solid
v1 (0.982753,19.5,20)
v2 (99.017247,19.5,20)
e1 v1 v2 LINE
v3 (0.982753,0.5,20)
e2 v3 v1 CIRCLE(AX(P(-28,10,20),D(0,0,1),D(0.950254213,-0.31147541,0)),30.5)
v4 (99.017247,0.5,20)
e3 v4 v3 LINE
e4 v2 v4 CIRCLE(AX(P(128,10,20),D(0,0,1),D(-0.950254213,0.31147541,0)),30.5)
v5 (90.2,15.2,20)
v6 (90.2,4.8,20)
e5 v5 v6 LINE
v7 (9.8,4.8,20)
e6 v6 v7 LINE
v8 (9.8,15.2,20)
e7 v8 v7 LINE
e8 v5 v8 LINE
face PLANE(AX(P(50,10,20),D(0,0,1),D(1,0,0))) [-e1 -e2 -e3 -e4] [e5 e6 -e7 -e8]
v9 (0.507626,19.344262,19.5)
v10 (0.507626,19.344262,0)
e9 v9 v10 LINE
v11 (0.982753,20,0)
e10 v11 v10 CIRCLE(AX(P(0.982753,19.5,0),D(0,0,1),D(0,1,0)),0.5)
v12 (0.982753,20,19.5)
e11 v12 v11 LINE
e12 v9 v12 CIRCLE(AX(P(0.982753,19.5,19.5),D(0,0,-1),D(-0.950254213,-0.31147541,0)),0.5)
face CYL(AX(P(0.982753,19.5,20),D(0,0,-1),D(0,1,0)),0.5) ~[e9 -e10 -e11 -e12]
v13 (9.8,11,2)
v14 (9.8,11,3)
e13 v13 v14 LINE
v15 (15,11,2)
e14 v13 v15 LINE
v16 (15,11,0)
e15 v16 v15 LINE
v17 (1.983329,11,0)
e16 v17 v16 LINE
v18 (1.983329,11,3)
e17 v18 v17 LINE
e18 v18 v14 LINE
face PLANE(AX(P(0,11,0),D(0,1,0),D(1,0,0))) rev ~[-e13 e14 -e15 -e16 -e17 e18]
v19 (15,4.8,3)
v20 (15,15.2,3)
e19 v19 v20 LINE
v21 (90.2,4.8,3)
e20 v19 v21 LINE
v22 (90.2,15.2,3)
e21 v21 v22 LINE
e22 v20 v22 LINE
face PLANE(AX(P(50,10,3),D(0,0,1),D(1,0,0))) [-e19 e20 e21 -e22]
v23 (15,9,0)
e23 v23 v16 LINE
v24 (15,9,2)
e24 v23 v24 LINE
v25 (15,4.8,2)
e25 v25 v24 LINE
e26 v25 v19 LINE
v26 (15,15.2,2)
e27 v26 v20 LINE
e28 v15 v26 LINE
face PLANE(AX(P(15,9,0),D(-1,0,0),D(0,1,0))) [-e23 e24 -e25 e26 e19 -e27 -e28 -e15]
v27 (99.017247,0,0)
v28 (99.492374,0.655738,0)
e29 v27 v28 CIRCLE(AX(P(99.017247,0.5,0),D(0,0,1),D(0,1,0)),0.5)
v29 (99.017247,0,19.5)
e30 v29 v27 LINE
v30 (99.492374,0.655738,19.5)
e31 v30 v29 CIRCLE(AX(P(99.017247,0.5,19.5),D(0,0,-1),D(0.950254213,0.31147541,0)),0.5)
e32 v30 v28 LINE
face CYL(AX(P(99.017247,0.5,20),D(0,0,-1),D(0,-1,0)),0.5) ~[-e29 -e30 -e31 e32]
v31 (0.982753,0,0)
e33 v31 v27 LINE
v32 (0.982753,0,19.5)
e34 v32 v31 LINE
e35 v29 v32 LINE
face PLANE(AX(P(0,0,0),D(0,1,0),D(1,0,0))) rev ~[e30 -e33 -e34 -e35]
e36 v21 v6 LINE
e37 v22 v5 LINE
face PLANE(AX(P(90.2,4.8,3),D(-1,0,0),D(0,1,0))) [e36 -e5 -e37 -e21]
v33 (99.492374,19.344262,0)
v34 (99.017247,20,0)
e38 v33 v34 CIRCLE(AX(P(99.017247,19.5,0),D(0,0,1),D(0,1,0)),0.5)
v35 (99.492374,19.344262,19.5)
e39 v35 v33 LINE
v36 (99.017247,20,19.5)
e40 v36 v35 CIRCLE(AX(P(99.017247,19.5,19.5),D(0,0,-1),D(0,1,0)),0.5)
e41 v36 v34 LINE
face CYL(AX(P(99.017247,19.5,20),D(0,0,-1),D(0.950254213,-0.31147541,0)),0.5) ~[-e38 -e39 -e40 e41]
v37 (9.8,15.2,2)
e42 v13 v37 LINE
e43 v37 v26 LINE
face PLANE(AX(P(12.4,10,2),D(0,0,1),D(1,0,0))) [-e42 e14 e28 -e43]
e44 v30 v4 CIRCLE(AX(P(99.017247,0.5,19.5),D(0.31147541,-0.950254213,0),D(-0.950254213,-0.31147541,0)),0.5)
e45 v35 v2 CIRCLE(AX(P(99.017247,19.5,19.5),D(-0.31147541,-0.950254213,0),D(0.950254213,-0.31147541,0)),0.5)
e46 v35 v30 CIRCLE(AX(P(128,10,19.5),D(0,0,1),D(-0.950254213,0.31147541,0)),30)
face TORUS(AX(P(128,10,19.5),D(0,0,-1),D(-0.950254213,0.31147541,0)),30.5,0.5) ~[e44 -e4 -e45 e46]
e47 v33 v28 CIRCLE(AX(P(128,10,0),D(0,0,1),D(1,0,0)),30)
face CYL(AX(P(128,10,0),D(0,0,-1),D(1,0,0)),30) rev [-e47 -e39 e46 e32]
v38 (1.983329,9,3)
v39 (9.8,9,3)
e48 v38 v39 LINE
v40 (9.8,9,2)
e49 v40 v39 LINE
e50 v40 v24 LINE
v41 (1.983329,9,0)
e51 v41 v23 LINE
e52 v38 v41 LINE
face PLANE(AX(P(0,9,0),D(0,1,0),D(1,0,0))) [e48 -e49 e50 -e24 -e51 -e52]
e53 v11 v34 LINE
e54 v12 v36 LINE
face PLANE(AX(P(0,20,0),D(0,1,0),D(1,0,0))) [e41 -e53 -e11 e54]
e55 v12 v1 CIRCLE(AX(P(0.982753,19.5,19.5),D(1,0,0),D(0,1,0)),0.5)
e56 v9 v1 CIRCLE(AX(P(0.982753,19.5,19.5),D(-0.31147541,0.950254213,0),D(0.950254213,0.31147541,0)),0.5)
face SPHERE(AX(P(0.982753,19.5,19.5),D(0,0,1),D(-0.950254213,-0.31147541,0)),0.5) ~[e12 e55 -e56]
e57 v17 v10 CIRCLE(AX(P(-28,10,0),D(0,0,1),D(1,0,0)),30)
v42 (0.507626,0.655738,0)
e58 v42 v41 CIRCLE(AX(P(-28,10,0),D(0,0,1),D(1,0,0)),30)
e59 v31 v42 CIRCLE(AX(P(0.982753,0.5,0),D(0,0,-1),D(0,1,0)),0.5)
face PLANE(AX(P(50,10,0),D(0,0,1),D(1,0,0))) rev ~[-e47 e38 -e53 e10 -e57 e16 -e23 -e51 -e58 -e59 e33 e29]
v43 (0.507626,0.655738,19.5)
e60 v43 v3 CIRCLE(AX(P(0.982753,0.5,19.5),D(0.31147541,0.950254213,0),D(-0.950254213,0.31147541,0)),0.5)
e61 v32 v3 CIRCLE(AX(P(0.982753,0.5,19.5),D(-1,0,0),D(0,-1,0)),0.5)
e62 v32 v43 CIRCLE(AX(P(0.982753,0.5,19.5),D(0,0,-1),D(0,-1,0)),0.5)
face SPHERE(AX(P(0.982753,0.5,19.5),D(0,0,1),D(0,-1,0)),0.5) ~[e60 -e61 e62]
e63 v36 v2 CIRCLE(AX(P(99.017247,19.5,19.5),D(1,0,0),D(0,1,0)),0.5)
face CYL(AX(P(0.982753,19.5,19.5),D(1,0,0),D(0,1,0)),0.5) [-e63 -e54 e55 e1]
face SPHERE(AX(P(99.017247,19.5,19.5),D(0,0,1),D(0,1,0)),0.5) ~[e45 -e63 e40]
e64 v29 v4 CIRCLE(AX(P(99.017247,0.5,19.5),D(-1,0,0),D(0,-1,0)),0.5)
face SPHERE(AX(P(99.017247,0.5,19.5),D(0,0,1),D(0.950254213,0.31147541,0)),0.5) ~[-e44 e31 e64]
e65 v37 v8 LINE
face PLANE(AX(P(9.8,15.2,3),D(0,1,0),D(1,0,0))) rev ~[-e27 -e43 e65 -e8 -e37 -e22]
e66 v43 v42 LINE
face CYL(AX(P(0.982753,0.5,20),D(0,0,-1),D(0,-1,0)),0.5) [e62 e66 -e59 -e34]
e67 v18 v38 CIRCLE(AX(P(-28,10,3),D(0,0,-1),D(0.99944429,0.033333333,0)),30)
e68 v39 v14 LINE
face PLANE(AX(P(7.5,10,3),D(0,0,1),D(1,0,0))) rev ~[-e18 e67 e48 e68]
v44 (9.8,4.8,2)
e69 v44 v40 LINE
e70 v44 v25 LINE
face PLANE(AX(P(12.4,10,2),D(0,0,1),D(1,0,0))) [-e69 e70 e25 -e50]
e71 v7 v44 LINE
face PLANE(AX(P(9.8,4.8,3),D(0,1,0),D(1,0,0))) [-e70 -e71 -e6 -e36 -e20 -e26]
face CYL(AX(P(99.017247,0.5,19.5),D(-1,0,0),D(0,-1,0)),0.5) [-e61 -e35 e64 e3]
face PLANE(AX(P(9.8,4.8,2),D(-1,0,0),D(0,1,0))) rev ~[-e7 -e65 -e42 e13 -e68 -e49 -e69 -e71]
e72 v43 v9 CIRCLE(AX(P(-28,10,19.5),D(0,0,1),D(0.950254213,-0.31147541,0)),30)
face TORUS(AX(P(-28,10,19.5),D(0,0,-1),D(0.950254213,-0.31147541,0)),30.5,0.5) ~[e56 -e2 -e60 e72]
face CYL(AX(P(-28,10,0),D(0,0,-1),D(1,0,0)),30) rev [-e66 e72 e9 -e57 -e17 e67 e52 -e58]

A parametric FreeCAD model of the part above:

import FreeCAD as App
import Part
import Sketcher
Q = App.Units.Quantity


def edges_at(feature, points):
    """Names of the edges that pass closest to the given points."""
    edges = feature.Shape.Edges
    near = lambda p: min(range(len(edges)), key=lambda i: edges[i].distToShape(Part.Vertex(*p))[0])
    return sorted({f"Edge{near(p) + 1}" for p in points})


def add_polygon(sketch, points):
    """Adds a closed chain of lines whose ends are joined by coincident constraints."""
    first, n = sketch.GeometryCount, len(points)
    for a, b in zip(points, points[1:] + points[:1]):
        sketch.addGeometry(Part.LineSegment(App.Vector(*a, 0), App.Vector(*b, 0)), False)
    for i in range(n):
        sketch.addConstraint(Sketcher.Constraint("Coincident", first + i, 2, first + (i + 1) % n, 1))

doc = App.newDocument("Part")
body = doc.addObject("PartDesign::Body", "Body")

sketch1 = body.newObject("Sketcher::SketchObject", "Sketch")
sketch1.AttachmentSupport = (doc.getObject("XY_Plane"), [""])
sketch1.MapMode = "FlatFace"
sketch1.addGeometry(Part.Circle(App.Vector(-28, 10, 0), App.Vector(0, 0, 1), 30), False)
sketch1.addConstraint(Sketcher.Constraint("Diameter", 0, Q("60 mm")))
sketch1.addConstraint(Sketcher.Constraint("DistanceX", 0, 3, -1, 1, Q("28 mm")))
sketch1.addConstraint(Sketcher.Constraint("DistanceY", -1, 1, 0, 3, Q("10 mm")))
pad1 = body.newObject("PartDesign::Pad", "Pad")
pad1.Profile = sketch1
pad1.Length = 20
body2 = doc.addObject("PartDesign::Body", "Body001")

sketch2 = body2.newObject("Sketcher::SketchObject", "Sketch001")
sketch2.AttachmentSupport = (doc.getObject("XY_Plane001"), [""])
sketch2.MapMode = "FlatFace"
sketch2.addGeometry(Part.Circle(App.Vector(128, 10, 0), App.Vector(0, 0, 1), 30), False)
sketch2.addConstraint(Sketcher.Constraint("Diameter", 0, Q("60 mm")))
sketch2.addConstraint(Sketcher.Constraint("DistanceX", -1, 1, 0, 3, Q("128 mm")))
sketch2.addConstraint(Sketcher.Constraint("DistanceY", -1, 1, 0, 3, Q("10 mm")))
pad2 = body2.newObject("PartDesign::Pad", "Pad001")
pad2.Profile = sketch2
pad2.Length = 20
body3 = doc.addObject("PartDesign::Body", "Body002")

sketch3 = body3.newObject("Sketcher::SketchObject", "Sketch002")
sketch3.AttachmentSupport = (doc.getObject("XY_Plane002"), [""])
sketch3.MapMode = "FlatFace"
sketch3.AttachmentOffset = App.Placement(App.Vector(0, 0, 2), App.Rotation())
add_polygon(sketch3, [(10, 15), (10, 5), (15, 5), (15, 15)])
sketch3.addConstraint(Sketcher.Constraint("Vertical", 0))
sketch3.addConstraint(Sketcher.Constraint("Horizontal", 1))
sketch3.addConstraint(Sketcher.Constraint("Vertical", 2))
sketch3.addConstraint(Sketcher.Constraint("Horizontal", 3))
sketch3.addConstraint(Sketcher.Constraint("DistanceX", 1, 1, 1, 2, Q("5.2 mm")))
sketch3.addConstraint(Sketcher.Constraint("DistanceY", 0, 2, 0, 1, Q("10.4 mm")))
sketch3.addConstraint(Sketcher.Constraint("DistanceX", -1, 1, 1, 2, Q("15 mm")))
sketch3.addConstraint(Sketcher.Constraint("DistanceY", -1, 1, 0, 2, Q("4.8 mm")))
pad3 = body3.newObject("PartDesign::Pad", "Pad002")
pad3.Profile = sketch3
pad3.Length = 1
body4 = doc.addObject("PartDesign::Body", "Body003")

sketch4 = body4.newObject("Sketcher::SketchObject", "Sketch003")
sketch4.AttachmentSupport = (doc.getObject("XY_Plane003"), [""])
sketch4.MapMode = "FlatFace"
add_polygon(sketch4, [(0, 11), (0, 9), (15, 9), (15, 11)])
sketch4.addConstraint(Sketcher.Constraint("Vertical", 0))
sketch4.addConstraint(Sketcher.Constraint("Horizontal", 1))
sketch4.addConstraint(Sketcher.Constraint("Vertical", 2))
sketch4.addConstraint(Sketcher.Constraint("Horizontal", 3))
sketch4.addConstraint(Sketcher.Constraint("PointOnObject", 0, 2, -2))
sketch4.addConstraint(Sketcher.Constraint("DistanceX", 1, 1, 1, 2, Q("15 mm")))
sketch4.addConstraint(Sketcher.Constraint("DistanceY", 0, 2, 0, 1, Q("2 mm")))
sketch4.addConstraint(Sketcher.Constraint("DistanceY", -1, 1, 0, 2, Q("9 mm")))
pad4 = body4.newObject("PartDesign::Pad", "Pad003")
pad4.Profile = sketch4
pad4.Length = 3
body5 = doc.addObject("PartDesign::Body", "Body004")

sketch5 = body5.newObject("Sketcher::SketchObject", "Sketch004")
sketch5.AttachmentSupport = (doc.getObject("XY_Plane004"), [""])
sketch5.MapMode = "FlatFace"
sketch5.AttachmentOffset = App.Placement(App.Vector(0, 0, 3), App.Rotation())
add_polygon(sketch5, [(10, 15), (10, 5), (90, 5), (90, 15)])
sketch5.addConstraint(Sketcher.Constraint("Vertical", 0))
sketch5.addConstraint(Sketcher.Constraint("Horizontal", 1))
sketch5.addConstraint(Sketcher.Constraint("Vertical", 2))
sketch5.addConstraint(Sketcher.Constraint("Horizontal", 3))
sketch5.addConstraint(Sketcher.Constraint("DistanceX", 1, 1, 1, 2, Q("80.4 mm")))
sketch5.addConstraint(Sketcher.Constraint("DistanceY", 0, 2, 0, 1, Q("10.4 mm")))
sketch5.addConstraint(Sketcher.Constraint("DistanceX", -1, 1, 0, 2, Q("9.8 mm")))
sketch5.addConstraint(Sketcher.Constraint("DistanceY", -1, 1, 0, 2, Q("4.8 mm")))
pad5 = body5.newObject("PartDesign::Pad", "Pad004")
pad5.Profile = sketch5
pad5.Length = 20
body6 = doc.addObject("PartDesign::Body", "Body005")

sketch6 = body6.newObject("Sketcher::SketchObject", "Sketch005")
sketch6.AttachmentSupport = (doc.getObject("XY_Plane005"), [""])
sketch6.MapMode = "FlatFace"
add_polygon(sketch6, [(0, 20), (0, 0), (100, 0), (100, 20)])
sketch6.addConstraint(Sketcher.Constraint("Vertical", 0))
sketch6.addConstraint(Sketcher.Constraint("Horizontal", 1))
sketch6.addConstraint(Sketcher.Constraint("Vertical", 2))
sketch6.addConstraint(Sketcher.Constraint("Horizontal", 3))
sketch6.addConstraint(Sketcher.Constraint("Coincident", 0, 2, -1, 1))
sketch6.addConstraint(Sketcher.Constraint("DistanceX", 1, 1, 1, 2, Q("100 mm")))
sketch6.addConstraint(Sketcher.Constraint("DistanceY", 0, 2, 0, 1, Q("20 mm")))
pad6 = body6.newObject("PartDesign::Pad", "Pad005")
pad6.Profile = sketch6
pad6.Length = 20
doc.recompute()

boolean = body6.newObject("PartDesign::Boolean", "Boolean")
boolean.Type = "Cut"
boolean.addObjects([body5])
doc.recompute()

boolean2 = body6.newObject("PartDesign::Boolean", "Boolean001")
boolean2.Type = "Cut"
boolean2.addObjects([body4])
doc.recompute()

boolean3 = body6.newObject("PartDesign::Boolean", "Boolean002")
boolean3.Type = "Cut"
boolean3.addObjects([body3])
doc.recompute()

boolean4 = body6.newObject("PartDesign::Boolean", "Boolean003")
boolean4.Type = "Cut"
boolean4.addObjects([body2])
doc.recompute()

boolean5 = body6.newObject("PartDesign::Boolean", "Boolean004")
boolean5.Type = "Cut"
boolean5.addObjects([body])
doc.recompute()

fillet = body6.newObject("PartDesign::Fillet", "Fillet")
fillet.Base = (boolean5, edges_at(boolean5, [
    (99.716, 20, 10),
    (0.284, 20, 10),
    (99.716, 0, 10),
    (0.284, 0, 10),
]))
fillet.Radius = 0.5
doc.recompute()

fillet2 = body6.newObject("PartDesign::Fillet", "Fillet001")
fillet2.Base = (fillet, edges_at(fillet, [
    (50, 20, 20),
    (0.578, 19.793, 20),
    (99.422, 19.793, 20),
    (2, 10, 20),
    (98, 10, 20),
    (2, 10, 20),
    (99.422, 0.207, 20),
    (0.578, 0.207, 20),
    (50, 0, 20),
]))
fillet2.Radius = 0.5

doc.recompute()
